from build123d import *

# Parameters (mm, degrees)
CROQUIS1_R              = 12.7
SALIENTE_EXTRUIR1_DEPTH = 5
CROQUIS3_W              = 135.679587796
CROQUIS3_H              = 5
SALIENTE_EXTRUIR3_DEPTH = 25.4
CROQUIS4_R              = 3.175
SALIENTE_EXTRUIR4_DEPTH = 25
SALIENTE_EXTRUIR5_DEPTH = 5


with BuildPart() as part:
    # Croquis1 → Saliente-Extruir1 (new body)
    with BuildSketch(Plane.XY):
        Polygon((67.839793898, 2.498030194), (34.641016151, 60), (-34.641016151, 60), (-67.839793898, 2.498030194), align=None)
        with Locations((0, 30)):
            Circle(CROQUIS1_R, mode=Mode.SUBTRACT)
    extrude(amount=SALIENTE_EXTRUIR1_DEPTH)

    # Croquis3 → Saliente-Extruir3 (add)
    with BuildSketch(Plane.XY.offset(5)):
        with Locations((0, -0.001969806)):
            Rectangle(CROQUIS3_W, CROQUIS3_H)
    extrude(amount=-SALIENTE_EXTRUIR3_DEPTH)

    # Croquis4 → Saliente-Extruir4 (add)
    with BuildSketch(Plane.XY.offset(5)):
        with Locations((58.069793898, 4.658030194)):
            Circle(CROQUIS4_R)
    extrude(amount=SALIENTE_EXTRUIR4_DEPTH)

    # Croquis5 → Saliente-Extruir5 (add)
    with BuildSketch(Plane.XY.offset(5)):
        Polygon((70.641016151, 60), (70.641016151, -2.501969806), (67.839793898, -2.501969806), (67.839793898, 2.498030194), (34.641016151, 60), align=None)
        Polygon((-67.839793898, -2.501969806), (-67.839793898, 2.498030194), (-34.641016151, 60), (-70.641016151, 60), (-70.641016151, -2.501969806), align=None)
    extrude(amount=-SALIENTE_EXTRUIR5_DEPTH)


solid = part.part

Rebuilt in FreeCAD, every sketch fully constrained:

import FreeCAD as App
import Part
import Sketcher
from FreeCAD import Vector
Q = App.Units.Quantity


def add_polygon(sketch, points):
    """Adds a closed chain of lines whose ends are joined by coincident constraints."""
    first, n = sketch.GeometryCount, len(points)
    for a, b in zip(points, points[1:] + points[:1]):
        sketch.addGeometry(Part.LineSegment(App.Vector(*a, 0), App.Vector(*b, 0)), False)
    for i in range(n):
        sketch.addConstraint(Sketcher.Constraint("Coincident", first + i, 2, first + (i + 1) % n, 1))

doc = App.newDocument("Part")
body = doc.addObject("PartDesign::Body", "Body")

sketch1 = body.newObject("Sketcher::SketchObject", "Sketch")
sketch1.AttachmentSupport = (doc.getObject("XY_Plane"), [""])
sketch1.MapMode = "FlatFace"
add_polygon(sketch1, [(68, 2), (35, 60), (-35, 60), (-68, 2)])
sketch1.addGeometry(Part.Circle(Vector(0, 30, 0), Vector(0, 0, 1), 13), False)
sketch1.addConstraint(Sketcher.Constraint("Horizontal", 1))
sketch1.addConstraint(Sketcher.Constraint("Horizontal", 3))
sketch1.addConstraint(Sketcher.Constraint("PointOnObject", 4, 3, -2))
sketch1.addConstraint(Sketcher.Constraint("Equal", 0, 2))
sketch1.addConstraint(Sketcher.Constraint("Diameter", 4, 25.4))
sketch1.addConstraint(Sketcher.Constraint("Angle", 0, Q("120 deg")))
sketch1.addConstraint(Sketcher.Constraint("DistanceY", -1, 1, 4, 3, 30.0))
sketch1.addConstraint(Sketcher.Constraint("DistanceY", -1, 1, 0, 2, 60.0))
sketch1.addConstraint(Sketcher.Constraint("DistanceX", 1, 2, 1, 1, 69.282032))
sketch1.addConstraint(Sketcher.Constraint("DistanceX", 3, 1, 3, 2, 135.679588))
sketch1.addConstraint(Sketcher.Constraint("DistanceX", -1, 1, 0, 2, 34.641016))
pad1 = body.newObject("PartDesign::Pad", "Pad")
pad1.Profile = sketch1
pad1.Length = 5

sketch2 = body.newObject("Sketcher::SketchObject", "Sketch001")
sketch2.AttachmentSupport = (doc.getObject("XY_Plane"), [""])
sketch2.MapMode = "FlatFace"
sketch2.AttachmentOffset = App.Placement(Vector(0, 0, 5), App.Rotation())
add_polygon(sketch2, [(-68, 2), (-68, -3), (68, -3), (68, 2)])
sketch2.addConstraint(Sketcher.Constraint("Vertical", 0))
sketch2.addConstraint(Sketcher.Constraint("Horizontal", 1))
sketch2.addConstraint(Sketcher.Constraint("Vertical", 2))
sketch2.addConstraint(Sketcher.Constraint("Horizontal", 3))
sketch2.addConstraint(Sketcher.Constraint("DistanceY", 0, 2, 0, 1, 5.0))
sketch2.addConstraint(Sketcher.Constraint("DistanceX", 1, 1, 1, 2, 135.679588))
sketch2.addConstraint(Sketcher.Constraint("DistanceY", 0, 2, -1, 1, 2.50197))
sketch2.addConstraint(Sketcher.Constraint("DistanceX", 0, 2, -1, 1, 67.839794))
pad2 = body.newObject("PartDesign::Pad", "Pad001")
pad2.Profile = sketch2
pad2.Length = 25.4
pad2.Reversed = True

sketch3 = body.newObject("Sketcher::SketchObject", "Sketch002")
sketch3.AttachmentSupport = (doc.getObject("XY_Plane"), [""])
sketch3.MapMode = "FlatFace"
sketch3.AttachmentOffset = App.Placement(Vector(0, 0, 5), App.Rotation())
sketch3.addGeometry(Part.Circle(Vector(58.1, 4.7, 0), Vector(0, 0, 1), 3.2), False)
sketch3.addConstraint(Sketcher.Constraint("Diameter", 0, 6.35))
sketch3.addConstraint(Sketcher.Constraint("DistanceY", -1, 1, 0, 3, 4.65803))
sketch3.addConstraint(Sketcher.Constraint("DistanceX", -1, 1, 0, 3, 58.069794))
pad3 = body.newObject("PartDesign::Pad", "Pad002")
pad3.Profile = sketch3
pad3.Length = 25

sketch4 = body.newObject("Sketcher::SketchObject", "Sketch003")
sketch4.AttachmentSupport = (doc.getObject("XY_Plane"), [""])
sketch4.MapMode = "FlatFace"
sketch4.AttachmentOffset = App.Placement(Vector(0, 0, 5), App.Rotation())
add_polygon(sketch4, [(70.6, -2.5), (70.6, 60), (34.6, 60), (67.8, 2.5), (67.8, -2.5)])
add_polygon(sketch4, [(-67.8, -2.5), (-67.8, 2.5), (-34.6, 60), (-70.6, 60), (-70.6, -2.5)])
sketch4.addConstraint(Sketcher.Constraint("Vertical", 0))
sketch4.addConstraint(Sketcher.Constraint("Horizontal", 1))
sketch4.addConstraint(Sketcher.Constraint("Vertical", 3))
sketch4.addConstraint(Sketcher.Constraint("Horizontal", 4))
sketch4.addConstraint(Sketcher.Constraint("Vertical", 5))
sketch4.addConstraint(Sketcher.Constraint("Horizontal", 7))
sketch4.addConstraint(Sketcher.Constraint("Vertical", 8))
sketch4.addConstraint(Sketcher.Constraint("Horizontal", 9))
sketch4.addConstraint(Sketcher.Constraint("Symmetric", 2, 2, 5, 2, -2))
sketch4.addConstraint(Sketcher.Constraint("Symmetric", 1, 2, 6, 2, -2))
sketch4.addConstraint(Sketcher.Constraint("Symmetric", 4, 2, 8, 2, -2))
sketch4.addConstraint(Sketcher.Constraint("DistanceX", 1, 2, 1, 1, 36.0))
sketch4.addConstraint(Sketcher.Constraint("DistanceY", 3, 2, 3, 1, 5.0))
sketch4.addConstraint(Sketcher.Constraint("Angle", 2, Q("-60 deg")))
sketch4.addConstraint(Sketcher.Constraint("DistanceY", -1, 1, 0, 2, 60.0))
sketch4.addConstraint(Sketcher.Constraint("DistanceY", 0, 1, 0, 2, 62.50197))
sketch4.addConstraint(Sketcher.Constraint("DistanceX", 5, 2, 1, 2, 102.48081))
pad4 = body.newObject("PartDesign::Pad", "Pad003")
pad4.Profile = sketch4
pad4.Length = 5
pad4.Reversed = True

doc.recompute()
